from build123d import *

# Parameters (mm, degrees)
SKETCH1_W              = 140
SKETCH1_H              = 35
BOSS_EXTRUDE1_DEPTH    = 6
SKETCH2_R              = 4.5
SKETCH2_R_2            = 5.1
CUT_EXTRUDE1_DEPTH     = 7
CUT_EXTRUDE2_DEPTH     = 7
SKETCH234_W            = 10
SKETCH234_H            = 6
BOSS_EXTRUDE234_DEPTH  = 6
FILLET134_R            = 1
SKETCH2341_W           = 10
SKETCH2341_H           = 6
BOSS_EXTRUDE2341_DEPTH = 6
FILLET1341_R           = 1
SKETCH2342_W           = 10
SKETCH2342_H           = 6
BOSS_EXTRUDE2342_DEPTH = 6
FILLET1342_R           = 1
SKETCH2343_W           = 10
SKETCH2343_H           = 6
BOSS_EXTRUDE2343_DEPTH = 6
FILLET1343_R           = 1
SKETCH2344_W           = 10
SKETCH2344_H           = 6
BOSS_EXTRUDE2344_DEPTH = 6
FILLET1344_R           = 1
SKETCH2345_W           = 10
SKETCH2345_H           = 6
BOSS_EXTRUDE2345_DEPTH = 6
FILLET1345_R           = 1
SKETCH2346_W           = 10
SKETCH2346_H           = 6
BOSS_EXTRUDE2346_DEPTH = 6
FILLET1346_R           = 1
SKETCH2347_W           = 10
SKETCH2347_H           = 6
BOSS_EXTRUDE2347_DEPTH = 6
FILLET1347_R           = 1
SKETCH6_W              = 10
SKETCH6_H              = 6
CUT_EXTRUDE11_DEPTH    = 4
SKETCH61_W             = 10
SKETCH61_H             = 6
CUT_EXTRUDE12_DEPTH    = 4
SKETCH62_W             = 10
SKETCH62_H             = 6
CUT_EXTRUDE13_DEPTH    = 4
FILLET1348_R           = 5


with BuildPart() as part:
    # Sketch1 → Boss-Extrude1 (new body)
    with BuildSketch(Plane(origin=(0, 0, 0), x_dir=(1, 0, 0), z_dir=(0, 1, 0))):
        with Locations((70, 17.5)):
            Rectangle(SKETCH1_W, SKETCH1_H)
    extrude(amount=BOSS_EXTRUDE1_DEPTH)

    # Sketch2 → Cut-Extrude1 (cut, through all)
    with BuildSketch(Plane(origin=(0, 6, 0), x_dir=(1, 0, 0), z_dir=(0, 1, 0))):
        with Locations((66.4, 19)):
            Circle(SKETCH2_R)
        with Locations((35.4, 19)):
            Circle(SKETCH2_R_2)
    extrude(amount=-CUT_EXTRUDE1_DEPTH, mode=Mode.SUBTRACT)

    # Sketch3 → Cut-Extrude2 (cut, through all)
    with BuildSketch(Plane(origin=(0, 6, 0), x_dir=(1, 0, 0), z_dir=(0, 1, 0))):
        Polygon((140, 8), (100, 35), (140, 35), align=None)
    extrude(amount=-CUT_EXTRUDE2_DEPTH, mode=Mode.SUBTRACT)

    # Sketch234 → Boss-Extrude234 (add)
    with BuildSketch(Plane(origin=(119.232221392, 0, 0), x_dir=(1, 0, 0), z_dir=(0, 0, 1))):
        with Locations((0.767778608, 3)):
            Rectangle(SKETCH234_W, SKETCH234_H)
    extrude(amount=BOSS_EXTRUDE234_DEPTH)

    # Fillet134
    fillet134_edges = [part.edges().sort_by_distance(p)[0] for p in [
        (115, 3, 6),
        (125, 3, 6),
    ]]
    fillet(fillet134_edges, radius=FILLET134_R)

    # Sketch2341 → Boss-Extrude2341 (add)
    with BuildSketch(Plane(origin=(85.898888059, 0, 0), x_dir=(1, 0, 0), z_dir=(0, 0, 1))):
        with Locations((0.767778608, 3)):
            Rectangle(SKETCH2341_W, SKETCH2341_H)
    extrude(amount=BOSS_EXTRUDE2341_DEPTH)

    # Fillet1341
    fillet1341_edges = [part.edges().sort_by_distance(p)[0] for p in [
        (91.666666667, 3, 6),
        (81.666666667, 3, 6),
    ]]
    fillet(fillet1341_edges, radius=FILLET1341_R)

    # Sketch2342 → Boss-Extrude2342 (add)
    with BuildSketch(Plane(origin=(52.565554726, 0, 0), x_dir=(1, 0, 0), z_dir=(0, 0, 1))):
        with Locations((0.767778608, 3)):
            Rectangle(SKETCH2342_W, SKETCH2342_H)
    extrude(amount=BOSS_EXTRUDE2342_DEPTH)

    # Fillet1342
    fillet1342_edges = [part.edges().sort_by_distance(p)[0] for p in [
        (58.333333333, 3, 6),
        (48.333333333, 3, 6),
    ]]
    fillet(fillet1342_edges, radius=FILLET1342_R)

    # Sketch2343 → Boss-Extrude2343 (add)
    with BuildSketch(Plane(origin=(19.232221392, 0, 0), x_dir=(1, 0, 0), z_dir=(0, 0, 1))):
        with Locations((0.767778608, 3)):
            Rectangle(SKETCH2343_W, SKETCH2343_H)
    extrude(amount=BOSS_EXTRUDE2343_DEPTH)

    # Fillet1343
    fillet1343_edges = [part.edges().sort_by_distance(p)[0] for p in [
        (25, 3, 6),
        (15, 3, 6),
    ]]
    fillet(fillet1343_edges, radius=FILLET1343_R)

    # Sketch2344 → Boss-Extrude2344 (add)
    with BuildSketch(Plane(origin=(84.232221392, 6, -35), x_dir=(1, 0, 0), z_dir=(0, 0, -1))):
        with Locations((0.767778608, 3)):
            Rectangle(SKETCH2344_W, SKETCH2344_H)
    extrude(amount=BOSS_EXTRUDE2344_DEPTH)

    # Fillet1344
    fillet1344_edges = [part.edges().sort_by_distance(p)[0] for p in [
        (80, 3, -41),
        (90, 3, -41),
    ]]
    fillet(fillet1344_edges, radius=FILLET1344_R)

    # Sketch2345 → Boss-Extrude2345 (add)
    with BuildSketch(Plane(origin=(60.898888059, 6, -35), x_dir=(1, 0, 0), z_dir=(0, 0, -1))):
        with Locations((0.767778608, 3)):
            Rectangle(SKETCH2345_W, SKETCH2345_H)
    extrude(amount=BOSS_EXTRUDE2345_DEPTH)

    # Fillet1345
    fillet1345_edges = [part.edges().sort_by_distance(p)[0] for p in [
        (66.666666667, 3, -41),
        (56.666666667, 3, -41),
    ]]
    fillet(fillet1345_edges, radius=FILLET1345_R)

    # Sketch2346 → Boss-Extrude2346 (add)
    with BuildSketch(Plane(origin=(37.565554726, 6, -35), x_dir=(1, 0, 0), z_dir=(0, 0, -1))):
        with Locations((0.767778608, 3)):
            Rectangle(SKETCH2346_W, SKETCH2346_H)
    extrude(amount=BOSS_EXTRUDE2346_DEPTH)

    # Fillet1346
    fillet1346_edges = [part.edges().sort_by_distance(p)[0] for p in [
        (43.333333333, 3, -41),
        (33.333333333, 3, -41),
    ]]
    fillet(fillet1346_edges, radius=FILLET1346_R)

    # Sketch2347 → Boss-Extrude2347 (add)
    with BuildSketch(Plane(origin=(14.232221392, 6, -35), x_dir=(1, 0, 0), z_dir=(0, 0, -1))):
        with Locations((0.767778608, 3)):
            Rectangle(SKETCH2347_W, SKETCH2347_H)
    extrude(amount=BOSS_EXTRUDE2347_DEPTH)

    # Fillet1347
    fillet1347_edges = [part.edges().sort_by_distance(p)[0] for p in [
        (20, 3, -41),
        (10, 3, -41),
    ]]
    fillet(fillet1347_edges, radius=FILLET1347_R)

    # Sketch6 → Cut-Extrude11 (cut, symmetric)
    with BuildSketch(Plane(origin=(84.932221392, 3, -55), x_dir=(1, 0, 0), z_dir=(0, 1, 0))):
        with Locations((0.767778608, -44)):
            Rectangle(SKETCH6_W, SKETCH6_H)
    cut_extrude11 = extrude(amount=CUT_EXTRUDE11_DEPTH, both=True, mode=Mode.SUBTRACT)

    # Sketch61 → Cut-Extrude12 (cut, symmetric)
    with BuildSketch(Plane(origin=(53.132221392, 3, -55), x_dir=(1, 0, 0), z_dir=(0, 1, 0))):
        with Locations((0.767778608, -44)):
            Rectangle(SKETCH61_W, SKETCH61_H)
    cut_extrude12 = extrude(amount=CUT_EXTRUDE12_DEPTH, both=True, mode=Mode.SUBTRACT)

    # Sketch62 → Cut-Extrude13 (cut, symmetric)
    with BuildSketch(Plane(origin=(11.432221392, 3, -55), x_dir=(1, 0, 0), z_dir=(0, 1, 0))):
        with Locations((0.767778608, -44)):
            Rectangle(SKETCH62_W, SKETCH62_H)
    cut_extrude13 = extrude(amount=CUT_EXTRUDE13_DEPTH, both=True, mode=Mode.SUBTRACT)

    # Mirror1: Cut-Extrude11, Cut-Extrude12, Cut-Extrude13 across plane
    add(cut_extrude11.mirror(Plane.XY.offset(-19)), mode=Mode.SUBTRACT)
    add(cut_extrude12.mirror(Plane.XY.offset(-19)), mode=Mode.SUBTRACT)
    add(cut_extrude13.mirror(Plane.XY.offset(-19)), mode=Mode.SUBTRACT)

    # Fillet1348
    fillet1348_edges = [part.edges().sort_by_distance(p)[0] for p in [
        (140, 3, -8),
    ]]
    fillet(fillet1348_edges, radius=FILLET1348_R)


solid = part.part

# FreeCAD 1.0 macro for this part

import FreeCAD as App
import Part
import Sketcher
Q = App.Units.Quantity


def edges_at(feature, points):
    """Names of the edges that pass closest to the given points."""
    edges = feature.Shape.Edges
    near = lambda p: min(range(len(edges)), key=lambda i: edges[i].distToShape(Part.Vertex(*p))[0])
    return sorted({f"Edge{near(p) + 1}" for p in points})


def add_polygon(sketch, points):
    """Adds a closed chain of lines whose ends are joined by coincident constraints."""
    first, n = sketch.GeometryCount, len(points)
    for a, b in zip(points, points[1:] + points[:1]):
        sketch.addGeometry(Part.LineSegment(App.Vector(*a, 0), App.Vector(*b, 0)), False)
    for i in range(n):
        sketch.addConstraint(Sketcher.Constraint("Coincident", first + i, 2, first + (i + 1) % n, 1))

doc = App.newDocument("Part")
body = doc.addObject("PartDesign::Body", "Body")

# Sketch on XZ plane
sketch1 = body.newObject("Sketcher::SketchObject", "Sketch")
sketch1.AttachmentSupport = (doc.getObject("XZ_Plane"), [""])
sketch1.MapMode = "FlatFace"
add_polygon(sketch1, [(0, -35), (0, 0), (140, 0), (140, -35)])  # lines 0-3
sketch1.addConstraint(Sketcher.Constraint("Vertical", 0))
sketch1.addConstraint(Sketcher.Constraint("Horizontal", 1))
sketch1.addConstraint(Sketcher.Constraint("Vertical", 2))
sketch1.addConstraint(Sketcher.Constraint("Horizontal", 3))
sketch1.addConstraint(Sketcher.Constraint("Coincident", 0, 2, -1, 1))
sketch1.addConstraint(Sketcher.Constraint("DistanceX", 1, 1, 1, 2, Q("140 mm")))
sketch1.addConstraint(Sketcher.Constraint("DistanceY", 0, 1, 0, 2, Q("35 mm")))
pad1 = body.newObject("PartDesign::Pad", "Pad")
pad1.Profile = sketch1
pad1.Length = 6
pad1.Reversed = True

# Sketch on XZ plane
sketch2 = body.newObject("Sketcher::SketchObject", "Sketch001")
sketch2.AttachmentSupport = (doc.getObject("XZ_Plane"), [""])
sketch2.MapMode = "FlatFace"
sketch2.AttachmentOffset = App.Placement(App.Vector(0, 0, -6), App.Rotation())
sketch2.addGeometry(Part.Circle(App.Vector(66.4, -19, 0), App.Vector(0, 0, 1), 4.5), False)
sketch2.addGeometry(Part.Circle(App.Vector(35.4, -19, 0), App.Vector(0, 0, 1), 5.1), False)
sketch2.addConstraint(Sketcher.Constraint("Horizontal", 0, 3, 1, 3))
sketch2.addConstraint(Sketcher.Constraint("Diameter", 0, Q("9 mm")))
sketch2.addConstraint(Sketcher.Constraint("Diameter", 1, Q("10.2 mm")))
sketch2.addConstraint(Sketcher.Constraint("DistanceY", 0, 3, -1, 1, Q("19 mm")))
sketch2.addConstraint(Sketcher.Constraint("DistanceX", 1, 3, 0, 3, Q("31 mm")))
sketch2.addConstraint(Sketcher.Constraint("DistanceX", -1, 1, 0, 3, Q("66.4 mm")))
pocket1 = body.newObject("PartDesign::Pocket", "Pocket")
pocket1.Profile = sketch2
pocket1.Type = "ThroughAll"
pocket1.Reversed = True

# Sketch on XZ plane
sketch3 = body.newObject("Sketcher::SketchObject", "Sketch002")
sketch3.AttachmentSupport = (doc.getObject("XZ_Plane"), [""])
sketch3.MapMode = "FlatFace"
sketch3.AttachmentOffset = App.Placement(App.Vector(0, 0, -6), App.Rotation())
add_polygon(sketch3, [(100, -35), (140, -8), (140, -35)])  # lines 0-2
sketch3.addConstraint(Sketcher.Constraint("Vertical", 1))
sketch3.addConstraint(Sketcher.Constraint("Horizontal", 2))
sketch3.addConstraint(Sketcher.Constraint("DistanceX", 2, 2, 2, 1, Q("40 mm")))
sketch3.addConstraint(Sketcher.Constraint("DistanceY", 1, 2, 1, 1, Q("27 mm")))
sketch3.addConstraint(Sketcher.Constraint("DistanceX", -1, 1, 0, 2, Q("140 mm")))
sketch3.addConstraint(Sketcher.Constraint("DistanceY", 0, 2, -1, 1, Q("8 mm")))
pocket2 = body.newObject("PartDesign::Pocket", "Pocket001")
pocket2.Profile = sketch3
pocket2.Type = "ThroughAll"
pocket2.Reversed = True

# Sketch on XY plane
sketch4 = body.newObject("Sketcher::SketchObject", "Sketch003")
sketch4.AttachmentSupport = (doc.getObject("XY_Plane"), [""])
sketch4.MapMode = "FlatFace"
add_polygon(sketch4, [(115, 6), (115, 0), (125, 0), (125, 6)])  # lines 0-3
sketch4.addConstraint(Sketcher.Constraint("Vertical", 0))
sketch4.addConstraint(Sketcher.Constraint("Horizontal", 1))
sketch4.addConstraint(Sketcher.Constraint("Vertical", 2))
sketch4.addConstraint(Sketcher.Constraint("Horizontal", 3))
sketch4.addConstraint(Sketcher.Constraint("PointOnObject", 0, 2, -1))
sketch4.addConstraint(Sketcher.Constraint("DistanceX", 1, 1, 1, 2, Q("10 mm")))
sketch4.addConstraint(Sketcher.Constraint("DistanceY", 0, 2, 0, 1, Q("6 mm")))
sketch4.addConstraint(Sketcher.Constraint("DistanceX", -1, 1, 0, 2, Q("115 mm")))
pad2 = body.newObject("PartDesign::Pad", "Pad001")
pad2.Profile = sketch4
pad2.Length = 6
doc.recompute()

fillet = body.newObject("PartDesign::Fillet", "Fillet")
fillet.Base = (pad2, edges_at(pad2, [(115, 3, 6), (125, 3, 6)]))
fillet.Radius = 1

# Sketch on XY plane
sketch5 = body.newObject("Sketcher::SketchObject", "Sketch004")
sketch5.AttachmentSupport = (doc.getObject("XY_Plane"), [""])
sketch5.MapMode = "FlatFace"
add_polygon(sketch5, [(82, 6), (82, 0), (92, 0), (92, 6)])  # lines 0-3
sketch5.addConstraint(Sketcher.Constraint("Vertical", 0))
sketch5.addConstraint(Sketcher.Constraint("Horizontal", 1))
sketch5.addConstraint(Sketcher.Constraint("Vertical", 2))
sketch5.addConstraint(Sketcher.Constraint("Horizontal", 3))
sketch5.addConstraint(Sketcher.Constraint("PointOnObject", 0, 2, -1))
sketch5.addConstraint(Sketcher.Constraint("DistanceX", 1, 1, 1, 2, Q("10 mm")))
sketch5.addConstraint(Sketcher.Constraint("DistanceY", 0, 2, 0, 1, Q("6 mm")))
sketch5.addConstraint(Sketcher.Constraint("DistanceX", -1, 1, 0, 2, Q("81.666667 mm")))
pad3 = body.newObject("PartDesign::Pad", "Pad002")
pad3.Profile = sketch5
pad3.Length = 6
doc.recompute()

fillet2 = body.newObject("PartDesign::Fillet", "Fillet001")
fillet2.Base = (pad3, edges_at(pad3, [(91.667, 3, 6), (81.667, 3, 6)]))
fillet2.Radius = 1

# Sketch on XY plane
sketch6 = body.newObject("Sketcher::SketchObject", "Sketch005")
sketch6.AttachmentSupport = (doc.getObject("XY_Plane"), [""])
sketch6.MapMode = "FlatFace"
add_polygon(sketch6, [(48, 6), (48, 0), (58, 0), (58, 6)])  # lines 0-3
sketch6.addConstraint(Sketcher.Constraint("Vertical", 0))
sketch6.addConstraint(Sketcher.Constraint("Horizontal", 1))
sketch6.addConstraint(Sketcher.Constraint("Vertical", 2))
sketch6.addConstraint(Sketcher.Constraint("Horizontal", 3))
sketch6.addConstraint(Sketcher.Constraint("PointOnObject", 0, 2, -1))
sketch6.addConstraint(Sketcher.Constraint("DistanceX", 1, 1, 1, 2, Q("10 mm")))
sketch6.addConstraint(Sketcher.Constraint("DistanceY", 0, 2, 0, 1, Q("6 mm")))
sketch6.addConstraint(Sketcher.Constraint("DistanceX", -1, 1, 0, 2, Q("48.333333 mm")))
pad4 = body.newObject("PartDesign::Pad", "Pad003")
pad4.Profile = sketch6
pad4.Length = 6
doc.recompute()

fillet3 = body.newObject("PartDesign::Fillet", "Fillet002")
fillet3.Base = (pad4, edges_at(pad4, [(58.333, 3, 6), (48.333, 3, 6)]))
fillet3.Radius = 1

# Sketch on XY plane
sketch7 = body.newObject("Sketcher::SketchObject", "Sketch006")
sketch7.AttachmentSupport = (doc.getObject("XY_Plane"), [""])
sketch7.MapMode = "FlatFace"
add_polygon(sketch7, [(15, 6), (15, 0), (25, 0), (25, 6)])  # lines 0-3
sketch7.addConstraint(Sketcher.Constraint("Vertical", 0))
sketch7.addConstraint(Sketcher.Constraint("Horizontal", 1))
sketch7.addConstraint(Sketcher.Constraint("Vertical", 2))
sketch7.addConstraint(Sketcher.Constraint("Horizontal", 3))
sketch7.addConstraint(Sketcher.Constraint("PointOnObject", 0, 2, -1))
sketch7.addConstraint(Sketcher.Constraint("DistanceX", 1, 1, 1, 2, Q("10 mm")))
sketch7.addConstraint(Sketcher.Constraint("DistanceY", 0, 2, 0, 1, Q("6 mm")))
sketch7.addConstraint(Sketcher.Constraint("DistanceX", -1, 1, 0, 2, Q("15 mm")))
pad5 = body.newObject("PartDesign::Pad", "Pad004")
pad5.Profile = sketch7
pad5.Length = 6
doc.recompute()

fillet4 = body.newObject("PartDesign::Fillet", "Fillet003")
fillet4.Base = (pad5, edges_at(pad5, [(25, 3, 6), (15, 3, 6)]))
fillet4.Radius = 1

# Sketch on XY plane
sketch8 = body.newObject("Sketcher::SketchObject", "Sketch007")
sketch8.AttachmentSupport = (doc.getObject("XY_Plane"), [""])
sketch8.MapMode = "FlatFace"
sketch8.AttachmentOffset = App.Placement(App.Vector(0, 0, -35), App.Rotation())
add_polygon(sketch8, [(80, 0), (80, 6), (90, 6), (90, 0)])  # lines 0-3
sketch8.addConstraint(Sketcher.Constraint("Vertical", 0))
sketch8.addConstraint(Sketcher.Constraint("Horizontal", 1))
sketch8.addConstraint(Sketcher.Constraint("Vertical", 2))
sketch8.addConstraint(Sketcher.Constraint("Horizontal", 3))
sketch8.addConstraint(Sketcher.Constraint("PointOnObject", 2, 2, -1))
sketch8.addConstraint(Sketcher.Constraint("DistanceX", 1, 1, 1, 2, Q("10 mm")))
sketch8.addConstraint(Sketcher.Constraint("DistanceY", 0, 1, 0, 2, Q("6 mm")))
sketch8.addConstraint(Sketcher.Constraint("DistanceX", -1, 1, 0, 2, Q("80 mm")))
pad6 = body.newObject("PartDesign::Pad", "Pad005")
pad6.Profile = sketch8
pad6.Length = 6
pad6.Reversed = True
doc.recompute()

fillet5 = body.newObject("PartDesign::Fillet", "Fillet004")
fillet5.Base = (pad6, edges_at(pad6, [(80, 3, -41), (90, 3, -41)]))
fillet5.Radius = 1

# Sketch on XY plane
sketch9 = body.newObject("Sketcher::SketchObject", "Sketch008")
sketch9.AttachmentSupport = (doc.getObject("XY_Plane"), [""])
sketch9.MapMode = "FlatFace"
sketch9.AttachmentOffset = App.Placement(App.Vector(0, 0, -35), App.Rotation())
add_polygon(sketch9, [(57, 0), (57, 6), (67, 6), (67, 0)])  # lines 0-3
sketch9.addConstraint(Sketcher.Constraint("Vertical", 0))
sketch9.addConstraint(Sketcher.Constraint("Horizontal", 1))
sketch9.addConstraint(Sketcher.Constraint("Vertical", 2))
sketch9.addConstraint(Sketcher.Constraint("Horizontal", 3))
sketch9.addConstraint(Sketcher.Constraint("PointOnObject", 2, 2, -1))
sketch9.addConstraint(Sketcher.Constraint("DistanceX", 1, 1, 1, 2, Q("10 mm")))
sketch9.addConstraint(Sketcher.Constraint("DistanceY", 0, 1, 0, 2, Q("6 mm")))
sketch9.addConstraint(Sketcher.Constraint("DistanceX", -1, 1, 0, 2, Q("56.666667 mm")))
pad7 = body.newObject("PartDesign::Pad", "Pad006")
pad7.Profile = sketch9
pad7.Length = 6
pad7.Reversed = True
doc.recompute()

fillet6 = body.newObject("PartDesign::Fillet", "Fillet005")
fillet6.Base = (pad7, edges_at(pad7, [(66.667, 3, -41), (56.667, 3, -41)]))
fillet6.Radius = 1

# Sketch on XY plane
sketch10 = body.newObject("Sketcher::SketchObject", "Sketch009")
sketch10.AttachmentSupport = (doc.getObject("XY_Plane"), [""])
sketch10.MapMode = "FlatFace"
sketch10.AttachmentOffset = App.Placement(App.Vector(0, 0, -35), App.Rotation())
add_polygon(sketch10, [(33, 0), (33, 6), (43, 6), (43, 0)])  # lines 0-3
sketch10.addConstraint(Sketcher.Constraint("Vertical", 0))
sketch10.addConstraint(Sketcher.Constraint("Horizontal", 1))
sketch10.addConstraint(Sketcher.Constraint("Vertical", 2))
sketch10.addConstraint(Sketcher.Constraint("Horizontal", 3))
sketch10.addConstraint(Sketcher.Constraint("PointOnObject", 2, 2, -1))
sketch10.addConstraint(Sketcher.Constraint("DistanceX", 1, 1, 1, 2, Q("10 mm")))
sketch10.addConstraint(Sketcher.Constraint("DistanceY", 0, 1, 0, 2, Q("6 mm")))
sketch10.addConstraint(Sketcher.Constraint("DistanceX", -1, 1, 0, 2, Q("33.333333 mm")))
pad8 = body.newObject("PartDesign::Pad", "Pad007")
pad8.Profile = sketch10
pad8.Length = 6
pad8.Reversed = True
doc.recompute()

fillet7 = body.newObject("PartDesign::Fillet", "Fillet006")
fillet7.Base = (pad8, edges_at(pad8, [(43.333, 3, -41), (33.333, 3, -41)]))
fillet7.Radius = 1

# Sketch on XY plane
sketch11 = body.newObject("Sketcher::SketchObject", "Sketch010")
sketch11.AttachmentSupport = (doc.getObject("XY_Plane"), [""])
sketch11.MapMode = "FlatFace"
sketch11.AttachmentOffset = App.Placement(App.Vector(0, 0, -35), App.Rotation())
add_polygon(sketch11, [(10, 0), (10, 6), (20, 6), (20, 0)])  # lines 0-3
sketch11.addConstraint(Sketcher.Constraint("Vertical", 0))
sketch11.addConstraint(Sketcher.Constraint("Horizontal", 1))
sketch11.addConstraint(Sketcher.Constraint("Vertical", 2))
sketch11.addConstraint(Sketcher.Constraint("Horizontal", 3))
sketch11.addConstraint(Sketcher.Constraint("PointOnObject", 2, 2, -1))
sketch11.addConstraint(Sketcher.Constraint("DistanceX", 1, 1, 1, 2, Q("10 mm")))
sketch11.addConstraint(Sketcher.Constraint("DistanceY", 0, 1, 0, 2, Q("6 mm")))
sketch11.addConstraint(Sketcher.Constraint("DistanceX", -1, 1, 0, 2, Q("10 mm")))
pad9 = body.newObject("PartDesign::Pad", "Pad008")
pad9.Profile = sketch11
pad9.Length = 6
pad9.Reversed = True
doc.recompute()

fillet8 = body.newObject("PartDesign::Fillet", "Fillet007")
fillet8.Base = (pad9, edges_at(pad9, [(20, 3, -41), (10, 3, -41)]))
fillet8.Radius = 1

# Sketch on XZ plane
sketch12 = body.newObject("Sketcher::SketchObject", "Sketch011")
sketch12.AttachmentSupport = (doc.getObject("XZ_Plane"), [""])
sketch12.MapMode = "FlatFace"
sketch12.AttachmentOffset = App.Placement(App.Vector(0, 0, -3), App.Rotation())
add_polygon(sketch12, [(81, -14), (81, -8), (91, -8), (91, -14)])  # lines 0-3
sketch12.addConstraint(Sketcher.Constraint("Vertical", 0))
sketch12.addConstraint(Sketcher.Constraint("Horizontal", 1))
sketch12.addConstraint(Sketcher.Constraint("Vertical", 2))
sketch12.addConstraint(Sketcher.Constraint("Horizontal", 3))
sketch12.addConstraint(Sketcher.Constraint("DistanceX", 1, 1, 1, 2, Q("10 mm")))
sketch12.addConstraint(Sketcher.Constraint("DistanceY", 0, 1, 0, 2, Q("6 mm")))
sketch12.addConstraint(Sketcher.Constraint("DistanceY", 0, 2, -1, 1, Q("8 mm")))
sketch12.addConstraint(Sketcher.Constraint("DistanceX", -1, 1, 0, 2, Q("80.7 mm")))
pocket3 = body.newObject("PartDesign::Pocket", "Pocket002")
pocket3.Profile = sketch12
pocket3.Length = 8
pocket3.Midplane = True

# Sketch on XZ plane
sketch13 = body.newObject("Sketcher::SketchObject", "Sketch012")
sketch13.AttachmentSupport = (doc.getObject("XZ_Plane"), [""])
sketch13.MapMode = "FlatFace"
sketch13.AttachmentOffset = App.Placement(App.Vector(0, 0, -3), App.Rotation())
add_polygon(sketch13, [(49, -14), (49, -8), (59, -8), (59, -14)])  # lines 0-3
sketch13.addConstraint(Sketcher.Constraint("Vertical", 0))
sketch13.addConstraint(Sketcher.Constraint("Horizontal", 1))
sketch13.addConstraint(Sketcher.Constraint("Vertical", 2))
sketch13.addConstraint(Sketcher.Constraint("Horizontal", 3))
sketch13.addConstraint(Sketcher.Constraint("DistanceX", 1, 1, 1, 2, Q("10 mm")))
sketch13.addConstraint(Sketcher.Constraint("DistanceY", 0, 1, 0, 2, Q("6 mm")))
sketch13.addConstraint(Sketcher.Constraint("DistanceY", 0, 2, -1, 1, Q("8 mm")))
sketch13.addConstraint(Sketcher.Constraint("DistanceX", -1, 1, 0, 2, Q("48.9 mm")))
pocket4 = body.newObject("PartDesign::Pocket", "Pocket003")
pocket4.Profile = sketch13
pocket4.Length = 8
pocket4.Midplane = True

# Sketch on XZ plane
sketch14 = body.newObject("Sketcher::SketchObject", "Sketch013")
sketch14.AttachmentSupport = (doc.getObject("XZ_Plane"), [""])
sketch14.MapMode = "FlatFace"
sketch14.AttachmentOffset = App.Placement(App.Vector(0, 0, -3), App.Rotation())
add_polygon(sketch14, [(7, -14), (7, -8), (17, -8), (17, -14)])  # lines 0-3
sketch14.addConstraint(Sketcher.Constraint("Vertical", 0))
sketch14.addConstraint(Sketcher.Constraint("Horizontal", 1))
sketch14.addConstraint(Sketcher.Constraint("Vertical", 2))
sketch14.addConstraint(Sketcher.Constraint("Horizontal", 3))
sketch14.addConstraint(Sketcher.Constraint("DistanceX", 1, 1, 1, 2, Q("10 mm")))
sketch14.addConstraint(Sketcher.Constraint("DistanceY", 0, 1, 0, 2, Q("6 mm")))
sketch14.addConstraint(Sketcher.Constraint("DistanceY", 0, 2, -1, 1, Q("8 mm")))
sketch14.addConstraint(Sketcher.Constraint("DistanceX", -1, 1, 0, 2, Q("7.2 mm")))
pocket5 = body.newObject("PartDesign::Pocket", "Pocket004")
pocket5.Profile = sketch14
pocket5.Length = 8
pocket5.Midplane = True
doc.recompute()

datumplane = body.newObject("PartDesign::Plane", "DatumPlane")
datumplane.AttachmentSupport = (doc.getObject("XY_Plane"), [""])
datumplane.MapMode = "FlatFace"
datumplane.AttachmentOffset = App.Placement(App.Vector(0, 0, -19), App.Rotation())
mirrored = body.newObject("PartDesign::Mirrored", "Mirrored")
mirrored.Originals = [pocket3, pocket4, pocket5]
mirrored.MirrorPlane = (datumplane, [""])
body.Tip = mirrored
doc.recompute()

fillet9 = body.newObject("PartDesign::Fillet", "Fillet008")
fillet9.Base = (mirrored, edges_at(mirrored, [(140, 3, -8)]))
fillet9.Radius = 5

doc.recompute()
